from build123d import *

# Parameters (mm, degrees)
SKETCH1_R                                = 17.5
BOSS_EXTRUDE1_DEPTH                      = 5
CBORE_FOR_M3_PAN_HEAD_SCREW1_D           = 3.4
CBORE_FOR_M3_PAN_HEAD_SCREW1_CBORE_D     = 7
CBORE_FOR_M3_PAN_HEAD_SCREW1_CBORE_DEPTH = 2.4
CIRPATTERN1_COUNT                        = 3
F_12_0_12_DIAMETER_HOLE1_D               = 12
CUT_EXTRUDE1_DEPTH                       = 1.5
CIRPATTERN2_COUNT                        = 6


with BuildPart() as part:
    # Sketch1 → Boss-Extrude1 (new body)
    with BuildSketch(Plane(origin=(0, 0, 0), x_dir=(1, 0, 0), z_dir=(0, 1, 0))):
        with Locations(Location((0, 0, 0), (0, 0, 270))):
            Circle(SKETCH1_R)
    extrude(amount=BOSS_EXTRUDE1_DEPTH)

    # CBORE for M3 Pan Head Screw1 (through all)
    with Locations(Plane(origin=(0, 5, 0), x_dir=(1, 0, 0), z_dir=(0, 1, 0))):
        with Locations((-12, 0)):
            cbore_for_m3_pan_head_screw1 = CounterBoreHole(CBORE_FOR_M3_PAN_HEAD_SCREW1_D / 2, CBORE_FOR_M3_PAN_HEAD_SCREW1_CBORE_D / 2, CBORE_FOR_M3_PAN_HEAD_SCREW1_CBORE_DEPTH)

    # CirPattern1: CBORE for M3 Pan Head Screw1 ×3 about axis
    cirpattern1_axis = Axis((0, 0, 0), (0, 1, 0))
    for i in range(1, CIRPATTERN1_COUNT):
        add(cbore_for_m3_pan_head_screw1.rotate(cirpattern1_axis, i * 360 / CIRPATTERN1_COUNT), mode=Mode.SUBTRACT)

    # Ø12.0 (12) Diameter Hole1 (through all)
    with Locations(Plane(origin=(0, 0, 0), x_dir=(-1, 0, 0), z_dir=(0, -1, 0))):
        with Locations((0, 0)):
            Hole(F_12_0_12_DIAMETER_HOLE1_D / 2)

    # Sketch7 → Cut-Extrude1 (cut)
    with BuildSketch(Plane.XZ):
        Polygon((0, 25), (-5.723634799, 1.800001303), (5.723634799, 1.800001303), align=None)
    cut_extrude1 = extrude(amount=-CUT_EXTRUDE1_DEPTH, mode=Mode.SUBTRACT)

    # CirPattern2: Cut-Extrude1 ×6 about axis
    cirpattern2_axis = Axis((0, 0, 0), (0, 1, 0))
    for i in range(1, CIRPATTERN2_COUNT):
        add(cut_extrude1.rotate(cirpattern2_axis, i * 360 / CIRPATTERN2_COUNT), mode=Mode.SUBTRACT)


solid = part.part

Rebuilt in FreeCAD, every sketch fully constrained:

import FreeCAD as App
import Part
import Sketcher
from FreeCAD import Vector

doc = App.newDocument("Part")
body = doc.addObject("PartDesign::Body", "Body")

# Sketch on XZ plane
sketch1 = body.newObject("Sketcher::SketchObject", "Sketch")
sketch1.AttachmentSupport = (doc.getObject("XZ_Plane"), [""])
sketch1.MapMode = "FlatFace"
sketch1.addGeometry(Part.Circle(Vector(0, 0, 0), Vector(0, 0, 1), 18), False)
sketch1.addConstraint(Sketcher.Constraint("Coincident", 0, 3, -1, 1))
sketch1.addConstraint(Sketcher.Constraint("Diameter", 0, 35.0))
pad1 = body.newObject("PartDesign::Pad", "Pad")
pad1.Profile = sketch1
pad1.Length = 5
pad1.Reversed = True

# Sketch on XZ plane
sketch2 = body.newObject("Sketcher::SketchObject", "Sketch001")
sketch2.AttachmentSupport = (doc.getObject("XZ_Plane"), [""])
sketch2.MapMode = "FlatFace"
sketch2.AttachmentOffset = App.Placement(Vector(0, 0, -5), App.Rotation())
sketch2.addGeometry(Part.Circle(Vector(-12, 0, 0), Vector(0, 0, 1), 1.7), False)
sketch2.addConstraint(Sketcher.Constraint("PointOnObject", 0, 3, -1))
sketch2.addConstraint(Sketcher.Constraint("Diameter", 0, 3.4))
sketch2.addConstraint(Sketcher.Constraint("DistanceX", 0, 3, -1, 1, 12.0))
doc.recompute()
hole = body.newObject("PartDesign::Hole", "Hole")
hole.Profile = sketch2
hole.ThreadType = "None"
hole.Diameter = 3.4
hole.DepthType = "ThroughAll"
hole.HoleCutType = "Counterbore"
hole.HoleCutDiameter = 7
hole.HoleCutDepth = 2.4
hole.Reversed = True
doc.recompute()

polarpattern = body.newObject("PartDesign::PolarPattern", "PolarPattern")
polarpattern.Originals = [hole]
polarpattern.Axis = (doc.getObject("Y_Axis"), [""])
polarpattern.Angle = 360
polarpattern.Occurrences = 3
body.Tip = polarpattern

# Sketch on XZ plane
sketch3 = body.newObject("Sketcher::SketchObject", "Sketch002")
sketch3.AttachmentSupport = (doc.getObject("XZ_Plane"), [""])
sketch3.MapMode = "FlatFace"
sketch3.addGeometry(Part.Circle(Vector(0, 0, 0), Vector(0, 0, 1), 6), False)
sketch3.addConstraint(Sketcher.Constraint("Coincident", 0, 3, -1, 1))
sketch3.addConstraint(Sketcher.Constraint("Diameter", 0, 12.0))
doc.recompute()
hole2 = body.newObject("PartDesign::Hole", "Hole001")
hole2.Profile = sketch3
hole2.ThreadType = "None"
hole2.Diameter = 12
hole2.DepthType = "ThroughAll"

# Sketch on XZ plane
sketch4 = body.newObject("Sketcher::SketchObject", "Sketch003")
sketch4.AttachmentSupport = (doc.getObject("XZ_Plane"), [""])
sketch4.MapMode = "FlatFace"
sketch4.addGeometry(Part.LineSegment(Vector(0, 25, 0), Vector(-6, 2, 0)), False)
sketch4.addGeometry(Part.LineSegment(Vector(-6, 2, 0), Vector(6, 2, 0)), False)
sketch4.addGeometry(Part.LineSegment(Vector(6, 2, 0), Vector(0, 25, 0)), False)
sketch4.addConstraint(Sketcher.Constraint("Coincident", 0, 2, 1, 1))
sketch4.addConstraint(Sketcher.Constraint("Coincident", 1, 2, 2, 1))
sketch4.addConstraint(Sketcher.Constraint("Coincident", 2, 2, 0, 1))
sketch4.addConstraint(Sketcher.Constraint("Horizontal", 1))
sketch4.addConstraint(Sketcher.Constraint("PointOnObject", 2, 2, -2))
sketch4.addConstraint(Sketcher.Constraint("Equal", 0, 2))
sketch4.addConstraint(Sketcher.Constraint("DistanceY", -1, 1, 2, 2, 25.0))
sketch4.addConstraint(Sketcher.Constraint("DistanceY", -1, 1, 0, 2, 1.800001))
sketch4.addConstraint(Sketcher.Constraint("DistanceX", 1, 1, 1, 2, 11.44727))
pocket1 = body.newObject("PartDesign::Pocket", "Pocket")
pocket1.Profile = sketch4
pocket1.Length = 1.5
doc.recompute()

polarpattern2 = body.newObject("PartDesign::PolarPattern", "PolarPattern001")
polarpattern2.Originals = [pocket1]
polarpattern2.Axis = (doc.getObject("Y_Axis"), [""])
polarpattern2.Angle = 360
polarpattern2.Occurrences = 6
body.Tip = polarpattern2

doc.recompute()
